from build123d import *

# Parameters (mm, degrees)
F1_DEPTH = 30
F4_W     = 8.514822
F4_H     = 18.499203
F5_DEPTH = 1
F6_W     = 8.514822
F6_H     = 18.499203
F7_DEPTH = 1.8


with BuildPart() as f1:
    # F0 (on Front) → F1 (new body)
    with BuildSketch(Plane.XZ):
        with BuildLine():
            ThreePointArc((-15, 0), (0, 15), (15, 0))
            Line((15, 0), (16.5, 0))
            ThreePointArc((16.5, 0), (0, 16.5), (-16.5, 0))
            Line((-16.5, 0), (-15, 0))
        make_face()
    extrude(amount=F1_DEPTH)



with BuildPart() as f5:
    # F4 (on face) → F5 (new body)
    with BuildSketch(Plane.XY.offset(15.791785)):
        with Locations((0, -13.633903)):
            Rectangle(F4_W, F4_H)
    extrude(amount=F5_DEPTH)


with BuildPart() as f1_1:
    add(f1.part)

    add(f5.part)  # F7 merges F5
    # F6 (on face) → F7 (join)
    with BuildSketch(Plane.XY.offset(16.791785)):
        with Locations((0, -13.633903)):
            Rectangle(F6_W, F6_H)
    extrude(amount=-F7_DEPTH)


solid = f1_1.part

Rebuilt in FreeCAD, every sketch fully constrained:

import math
import FreeCAD as App
import Part
import Sketcher
Q = App.Units.Quantity


def add_polygon(sketch, points):
    """Adds a closed chain of lines whose ends are joined by coincident constraints."""
    first, n = sketch.GeometryCount, len(points)
    for a, b in zip(points, points[1:] + points[:1]):
        sketch.addGeometry(Part.LineSegment(App.Vector(*a, 0), App.Vector(*b, 0)), False)
    for i in range(n):
        sketch.addConstraint(Sketcher.Constraint("Coincident", first + i, 2, first + (i + 1) % n, 1))

doc = App.newDocument("Part")
body = doc.addObject("PartDesign::Body", "Body")

# Sketch on XZ plane
sketch1 = doc.addObject("Sketcher::SketchObject", "Sketch")
body.addObject(sketch1)
sketch1.AttachmentSupport = (doc.XZ_Plane, [""])
sketch1.MapMode = "FlatFace"
sketch1.addGeometry(Part.ArcOfCircle(Part.Circle(App.Vector(0, 0, 0), App.Vector(0, 0, 1), 15), math.radians(0), math.radians(180)), False)
sketch1.addGeometry(Part.LineSegment(App.Vector(15, 0, 0), App.Vector(16.5, 0, 0)), False)
sketch1.addGeometry(Part.ArcOfCircle(Part.Circle(App.Vector(0, 0, 0), App.Vector(0, 0, 1), 16.5), math.radians(0), math.radians(180)), False)
sketch1.addGeometry(Part.LineSegment(App.Vector(-16.5, 0, 0), App.Vector(-15, 0, 0)), False)
sketch1.addConstraint(Sketcher.Constraint("Coincident", 0, 1, 1, 1))
sketch1.addConstraint(Sketcher.Constraint("Coincident", 1, 2, 2, 1))
sketch1.addConstraint(Sketcher.Constraint("Coincident", 2, 2, 3, 1))
sketch1.addConstraint(Sketcher.Constraint("Coincident", 3, 2, 0, 2))
sketch1.addConstraint(Sketcher.Constraint("Horizontal", 1))
sketch1.addConstraint(Sketcher.Constraint("Horizontal", 3))
sketch1.addConstraint(Sketcher.Constraint("Coincident", 0, 3, -1, 1))
sketch1.addConstraint(Sketcher.Constraint("Coincident", 2, 3, -1, 1))
sketch1.addConstraint(Sketcher.Constraint("PointOnObject", 0, 1, -1))
sketch1.addConstraint(Sketcher.Constraint("PointOnObject", 2, 2, -1))
sketch1.addConstraint(Sketcher.Constraint("Radius", 0, Q("15 mm")))
sketch1.addConstraint(Sketcher.Constraint("Radius", 2, Q("16.5 mm")))
pad1 = doc.addObject("PartDesign::Pad", "Pad")
body.addObject(pad1)
pad1.Profile = sketch1
pad1.Length = 30
body2 = doc.addObject("PartDesign::Body", "Body001")

# Sketch on XY plane
sketch2 = doc.addObject("Sketcher::SketchObject", "Sketch001")
body2.addObject(sketch2)
sketch2.AttachmentSupport = (doc.getObject("XY_Plane001"), [""])
sketch2.MapMode = "FlatFace"
sketch2.AttachmentOffset = App.Placement(App.Vector(0, 0, 15.791785), App.Rotation())
add_polygon(sketch2, [(-4, -4), (-4, -23), (4, -23), (4, -4)])  # lines 0-3
sketch2.addConstraint(Sketcher.Constraint("Vertical", 0))
sketch2.addConstraint(Sketcher.Constraint("Horizontal", 1))
sketch2.addConstraint(Sketcher.Constraint("Vertical", 2))
sketch2.addConstraint(Sketcher.Constraint("Horizontal", 3))
sketch2.addConstraint(Sketcher.Constraint("DistanceY", 2, 2, -1, 1, Q("4.384302 mm")))
sketch2.addConstraint(Sketcher.Constraint("DistanceX", 1, 1, 1, 2, Q("8.514822 mm")))
sketch2.addConstraint(Sketcher.Constraint("DistanceY", 0, 2, 0, 1, Q("18.499203 mm")))
sketch2.addConstraint(Sketcher.Constraint("DistanceX", 0, 2, -1, 1, Q("4.257411 mm")))
pad2 = doc.addObject("PartDesign::Pad", "Pad001")
body2.addObject(pad2)
pad2.Profile = sketch2
pad2.Length = 1
doc.recompute()

boolean = doc.addObject("PartDesign::Boolean", "Boolean")
body.addObject(boolean)
boolean.Type = "Fuse"
boolean.addObjects([body2])

# Sketch on XY plane
sketch3 = doc.addObject("Sketcher::SketchObject", "Sketch002")
body.addObject(sketch3)
sketch3.AttachmentSupport = (doc.XY_Plane, [""])
sketch3.MapMode = "FlatFace"
sketch3.AttachmentOffset = App.Placement(App.Vector(0, 0, 16.791785), App.Rotation())
add_polygon(sketch3, [(-4, -4), (-4, -23), (4, -23), (4, -4)])  # lines 0-3
sketch3.addConstraint(Sketcher.Constraint("Vertical", 0))
sketch3.addConstraint(Sketcher.Constraint("Horizontal", 1))
sketch3.addConstraint(Sketcher.Constraint("Vertical", 2))
sketch3.addConstraint(Sketcher.Constraint("Horizontal", 3))
sketch3.addConstraint(Sketcher.Constraint("DistanceY", 2, 2, -1, 1, Q("4.384302 mm")))
sketch3.addConstraint(Sketcher.Constraint("DistanceX", 1, 1, 1, 2, Q("8.514822 mm")))
sketch3.addConstraint(Sketcher.Constraint("DistanceY", 0, 2, 0, 1, Q("18.499203 mm")))
sketch3.addConstraint(Sketcher.Constraint("DistanceX", 0, 2, -1, 1, Q("4.257411 mm")))
pad3 = doc.addObject("PartDesign::Pad", "Pad002")
body.addObject(pad3)
pad3.Profile = sketch3
pad3.Length = 1.8
pad3.Reversed = True

doc.recompute()
